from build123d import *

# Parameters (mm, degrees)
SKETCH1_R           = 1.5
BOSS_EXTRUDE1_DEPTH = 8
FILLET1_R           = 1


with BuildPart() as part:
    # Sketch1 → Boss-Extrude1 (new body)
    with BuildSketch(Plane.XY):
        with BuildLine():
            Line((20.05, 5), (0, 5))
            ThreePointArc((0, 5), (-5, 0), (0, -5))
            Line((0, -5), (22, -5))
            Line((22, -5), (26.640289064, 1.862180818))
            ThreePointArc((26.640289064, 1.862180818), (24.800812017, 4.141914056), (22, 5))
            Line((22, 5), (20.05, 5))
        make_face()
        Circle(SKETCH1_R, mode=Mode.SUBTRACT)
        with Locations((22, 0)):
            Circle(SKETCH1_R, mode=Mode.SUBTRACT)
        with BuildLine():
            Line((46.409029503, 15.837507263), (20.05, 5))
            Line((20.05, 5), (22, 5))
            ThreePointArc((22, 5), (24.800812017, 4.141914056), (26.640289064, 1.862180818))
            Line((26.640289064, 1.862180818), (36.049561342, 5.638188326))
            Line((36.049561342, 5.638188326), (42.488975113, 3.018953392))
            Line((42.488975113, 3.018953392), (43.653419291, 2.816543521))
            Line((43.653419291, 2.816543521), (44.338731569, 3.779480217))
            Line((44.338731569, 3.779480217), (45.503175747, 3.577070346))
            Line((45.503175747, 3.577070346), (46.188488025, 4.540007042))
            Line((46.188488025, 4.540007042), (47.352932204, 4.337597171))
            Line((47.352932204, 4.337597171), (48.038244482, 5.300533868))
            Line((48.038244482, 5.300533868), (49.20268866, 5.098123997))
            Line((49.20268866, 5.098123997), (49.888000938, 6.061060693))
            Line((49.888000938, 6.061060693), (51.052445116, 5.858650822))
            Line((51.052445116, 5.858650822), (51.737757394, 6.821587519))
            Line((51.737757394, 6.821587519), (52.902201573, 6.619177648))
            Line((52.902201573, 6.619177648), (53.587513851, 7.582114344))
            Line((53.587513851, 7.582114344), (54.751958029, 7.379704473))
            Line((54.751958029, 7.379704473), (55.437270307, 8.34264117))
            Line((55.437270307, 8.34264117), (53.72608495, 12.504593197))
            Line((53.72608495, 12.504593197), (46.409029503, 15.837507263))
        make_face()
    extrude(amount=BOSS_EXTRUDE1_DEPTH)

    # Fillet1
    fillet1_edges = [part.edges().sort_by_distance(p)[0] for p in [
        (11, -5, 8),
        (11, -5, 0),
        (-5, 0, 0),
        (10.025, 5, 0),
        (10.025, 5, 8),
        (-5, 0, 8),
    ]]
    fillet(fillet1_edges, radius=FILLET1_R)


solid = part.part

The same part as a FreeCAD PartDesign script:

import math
import FreeCAD as App
import Part
import Sketcher
Q = App.Units.Quantity


def edges_at(feature, points):
    """Names of the edges that pass closest to the given points."""
    edges = feature.Shape.Edges
    near = lambda p: min(range(len(edges)), key=lambda i: edges[i].distToShape(Part.Vertex(*p))[0])
    return sorted({f"Edge{near(p) + 1}" for p in points})

doc = App.newDocument("Part")
body = doc.addObject("PartDesign::Body", "Body")

# Sketch on XY plane
sketch1 = body.newObject("Sketcher::SketchObject", "Sketch")
sketch1.AttachmentSupport = (doc.getObject("XY_Plane"), [""])
sketch1.MapMode = "FlatFace"
sketch1.addGeometry(Part.ArcOfCircle(Part.Circle(App.Vector(0, 0, 0), App.Vector(0, 0, 1), 5), math.radians(90), math.radians(270)), False)
sketch1.addGeometry(Part.LineSegment(App.Vector(0, -5, 0), App.Vector(22, -5, 0)), False)
sketch1.addGeometry(Part.LineSegment(App.Vector(22, -5, 0), App.Vector(26.6, 1.9, 0)), False)
sketch1.addGeometry(Part.LineSegment(App.Vector(26.6, 1.9, 0), App.Vector(36, 5.6, 0)), False)
sketch1.addGeometry(Part.LineSegment(App.Vector(36, 5.6, 0), App.Vector(42.5, 3, 0)), False)
sketch1.addGeometry(Part.LineSegment(App.Vector(42.5, 3, 0), App.Vector(43.7, 2.8, 0)), False)
sketch1.addGeometry(Part.LineSegment(App.Vector(43.7, 2.8, 0), App.Vector(44.3, 3.8, 0)), False)
sketch1.addGeometry(Part.LineSegment(App.Vector(44.3, 3.8, 0), App.Vector(45.5, 3.6, 0)), False)
sketch1.addGeometry(Part.LineSegment(App.Vector(45.5, 3.6, 0), App.Vector(46.2, 4.5, 0)), False)
sketch1.addGeometry(Part.LineSegment(App.Vector(46.2, 4.5, 0), App.Vector(47.4, 4.3, 0)), False)
sketch1.addGeometry(Part.LineSegment(App.Vector(47.4, 4.3, 0), App.Vector(48, 5.3, 0)), False)
sketch1.addGeometry(Part.LineSegment(App.Vector(48, 5.3, 0), App.Vector(49.2, 5.1, 0)), False)
sketch1.addGeometry(Part.LineSegment(App.Vector(49.2, 5.1, 0), App.Vector(49.9, 6.1, 0)), False)
sketch1.addGeometry(Part.LineSegment(App.Vector(49.9, 6.1, 0), App.Vector(51.1, 5.9, 0)), False)
sketch1.addGeometry(Part.LineSegment(App.Vector(51.1, 5.9, 0), App.Vector(51.7, 6.8, 0)), False)
sketch1.addGeometry(Part.LineSegment(App.Vector(51.7, 6.8, 0), App.Vector(52.9, 6.6, 0)), False)
sketch1.addGeometry(Part.LineSegment(App.Vector(52.9, 6.6, 0), App.Vector(53.6, 7.6, 0)), False)
sketch1.addGeometry(Part.LineSegment(App.Vector(53.6, 7.6, 0), App.Vector(54.8, 7.4, 0)), False)
sketch1.addGeometry(Part.LineSegment(App.Vector(54.8, 7.4, 0), App.Vector(55.4, 8.3, 0)), False)
sketch1.addGeometry(Part.LineSegment(App.Vector(55.4, 8.3, 0), App.Vector(53.7, 12.5, 0)), False)
sketch1.addGeometry(Part.LineSegment(App.Vector(53.7, 12.5, 0), App.Vector(46.4, 15.8, 0)), False)
sketch1.addGeometry(Part.LineSegment(App.Vector(46.4, 15.8, 0), App.Vector(20.1, 5, 0)), False)
sketch1.addGeometry(Part.LineSegment(App.Vector(20.1, 5, 0), App.Vector(0, 5, 0)), False)
sketch1.addGeometry(Part.Circle(App.Vector(0, 0, 0), App.Vector(0, 0, 1), 1.5), False)
sketch1.addGeometry(Part.Circle(App.Vector(22, 0, 0), App.Vector(0, 0, 1), 1.5), False)
sketch1.addConstraint(Sketcher.Constraint("Tangent", 0, 2, 1, 1))
sketch1.addConstraint(Sketcher.Constraint("Coincident", 1, 2, 2, 1))
sketch1.addConstraint(Sketcher.Constraint("Coincident", 2, 2, 3, 1))
sketch1.addConstraint(Sketcher.Constraint("Coincident", 3, 2, 4, 1))
sketch1.addConstraint(Sketcher.Constraint("Coincident", 4, 2, 5, 1))
sketch1.addConstraint(Sketcher.Constraint("Coincident", 5, 2, 6, 1))
sketch1.addConstraint(Sketcher.Constraint("Coincident", 6, 2, 7, 1))
sketch1.addConstraint(Sketcher.Constraint("Coincident", 7, 2, 8, 1))
sketch1.addConstraint(Sketcher.Constraint("Coincident", 8, 2, 9, 1))
sketch1.addConstraint(Sketcher.Constraint("Coincident", 9, 2, 10, 1))
sketch1.addConstraint(Sketcher.Constraint("Coincident", 10, 2, 11, 1))
sketch1.addConstraint(Sketcher.Constraint("Coincident", 11, 2, 12, 1))
sketch1.addConstraint(Sketcher.Constraint("Coincident", 12, 2, 13, 1))
sketch1.addConstraint(Sketcher.Constraint("Coincident", 13, 2, 14, 1))
sketch1.addConstraint(Sketcher.Constraint("Coincident", 14, 2, 15, 1))
sketch1.addConstraint(Sketcher.Constraint("Coincident", 15, 2, 16, 1))
sketch1.addConstraint(Sketcher.Constraint("Coincident", 16, 2, 17, 1))
sketch1.addConstraint(Sketcher.Constraint("Coincident", 17, 2, 18, 1))
sketch1.addConstraint(Sketcher.Constraint("Coincident", 18, 2, 19, 1))
sketch1.addConstraint(Sketcher.Constraint("Coincident", 19, 2, 20, 1))
sketch1.addConstraint(Sketcher.Constraint("Coincident", 20, 2, 21, 1))
sketch1.addConstraint(Sketcher.Constraint("Coincident", 21, 2, 22, 1))
sketch1.addConstraint(Sketcher.Constraint("Tangent", 22, 2, 0, 1))
sketch1.addConstraint(Sketcher.Constraint("Horizontal", 1))
sketch1.addConstraint(Sketcher.Constraint("Horizontal", 22))
sketch1.addConstraint(Sketcher.Constraint("Coincident", 0, 3, -1, 1))
sketch1.addConstraint(Sketcher.Constraint("Coincident", 23, 3, -1, 1))
sketch1.addConstraint(Sketcher.Constraint("Equal", 23, 24))
sketch1.addConstraint(Sketcher.Constraint("PointOnObject", 24, 3, -1))
sketch1.addConstraint(Sketcher.Constraint("Parallel", 5, 7))
sketch1.addConstraint(Sketcher.Constraint("Parallel", 6, 8))
sketch1.addConstraint(Sketcher.Constraint("Parallel", 7, 9))
sketch1.addConstraint(Sketcher.Constraint("Parallel", 8, 10))
sketch1.addConstraint(Sketcher.Constraint("Parallel", 9, 11))
sketch1.addConstraint(Sketcher.Constraint("Parallel", 10, 12))
sketch1.addConstraint(Sketcher.Constraint("Parallel", 11, 13))
sketch1.addConstraint(Sketcher.Constraint("Parallel", 12, 14))
sketch1.addConstraint(Sketcher.Constraint("Parallel", 13, 15))
sketch1.addConstraint(Sketcher.Constraint("Parallel", 14, 16))
sketch1.addConstraint(Sketcher.Constraint("Parallel", 15, 17))
sketch1.addConstraint(Sketcher.Constraint("Parallel", 16, 18))
sketch1.addConstraint(Sketcher.Constraint("Perpendicular", 19, 21))
sketch1.addConstraint(Sketcher.Constraint("Vertical", 24, 3, 1, 2))
sketch1.addConstraint(Sketcher.Constraint("Equal", 5, 6))
sketch1.addConstraint(Sketcher.Constraint("Equal", 6, 7))
sketch1.addConstraint(Sketcher.Constraint("Equal", 7, 8))
sketch1.addConstraint(Sketcher.Constraint("Equal", 8, 9))
sketch1.addConstraint(Sketcher.Constraint("Equal", 9, 10))
sketch1.addConstraint(Sketcher.Constraint("Equal", 10, 11))
sketch1.addConstraint(Sketcher.Constraint("Equal", 11, 12))
sketch1.addConstraint(Sketcher.Constraint("Equal", 12, 13))
sketch1.addConstraint(Sketcher.Constraint("Equal", 13, 14))
sketch1.addConstraint(Sketcher.Constraint("Equal", 14, 15))
sketch1.addConstraint(Sketcher.Constraint("Equal", 15, 16))
sketch1.addConstraint(Sketcher.Constraint("Equal", 16, 17))
sketch1.addConstraint(Sketcher.Constraint("Equal", 17, 18))
sketch1.addConstraint(Sketcher.Constraint("Diameter", 23, 3.0))
sketch1.addConstraint(Sketcher.Constraint("Radius", 0, 5.0))
sketch1.addConstraint(Sketcher.Constraint("DistanceX", 1, 1, 1, 2, 22.0))
sketch1.addConstraint(Sketcher.Constraint("Distance", 19, 4.5))
sketch1.addConstraint(Sketcher.Constraint("Distance", 21, 28.5))
sketch1.addConstraint(Sketcher.Constraint("DistanceX", 22, 2, 22, 1, 20.05))
sketch1.addConstraint(Sketcher.Constraint("Angle", 19, Q("112.35 deg")))
sketch1.addConstraint(Sketcher.Constraint("DistanceX", -1, 1, 12, 2, 49.888001))
sketch1.addConstraint(Sketcher.Constraint("DistanceX", -1, 1, 15, 2, 52.902202))
sketch1.addConstraint(Sketcher.Constraint("DistanceY", 2, 2, 6, 2, 1.917299))
sketch1.addConstraint(Sketcher.Constraint("Distance", 2, 8.283828))
sketch1.addConstraint(Sketcher.Constraint("Distance", 3, 10.13867))
sketch1.addConstraint(Sketcher.Constraint("DistanceX", -1, 1, 2, 2, 26.640289))
sketch1.addConstraint(Sketcher.Constraint("DistanceX", -1, 1, 3, 2, 36.049561))
sketch1.addConstraint(Sketcher.Constraint("DistanceX", -1, 1, 5, 2, 43.653419))
sketch1.addConstraint(Sketcher.Constraint("DistanceY", -1, 1, 7, 2, 3.57707))
pad1 = body.newObject("PartDesign::Pad", "Pad")
pad1.Profile = sketch1
pad1.Length = 8
doc.recompute()

fillet = body.newObject("PartDesign::Fillet", "Fillet")
fillet.Base = (pad1, edges_at(pad1, [
    (11, -5, 8),
    (11, -5, 0),
    (-5, 0, 0),
    (10.025, 5, 0),
    (10.025, 5, 8),
    (-5, 0, 8),
]))
fillet.Radius = 1

doc.recompute()
